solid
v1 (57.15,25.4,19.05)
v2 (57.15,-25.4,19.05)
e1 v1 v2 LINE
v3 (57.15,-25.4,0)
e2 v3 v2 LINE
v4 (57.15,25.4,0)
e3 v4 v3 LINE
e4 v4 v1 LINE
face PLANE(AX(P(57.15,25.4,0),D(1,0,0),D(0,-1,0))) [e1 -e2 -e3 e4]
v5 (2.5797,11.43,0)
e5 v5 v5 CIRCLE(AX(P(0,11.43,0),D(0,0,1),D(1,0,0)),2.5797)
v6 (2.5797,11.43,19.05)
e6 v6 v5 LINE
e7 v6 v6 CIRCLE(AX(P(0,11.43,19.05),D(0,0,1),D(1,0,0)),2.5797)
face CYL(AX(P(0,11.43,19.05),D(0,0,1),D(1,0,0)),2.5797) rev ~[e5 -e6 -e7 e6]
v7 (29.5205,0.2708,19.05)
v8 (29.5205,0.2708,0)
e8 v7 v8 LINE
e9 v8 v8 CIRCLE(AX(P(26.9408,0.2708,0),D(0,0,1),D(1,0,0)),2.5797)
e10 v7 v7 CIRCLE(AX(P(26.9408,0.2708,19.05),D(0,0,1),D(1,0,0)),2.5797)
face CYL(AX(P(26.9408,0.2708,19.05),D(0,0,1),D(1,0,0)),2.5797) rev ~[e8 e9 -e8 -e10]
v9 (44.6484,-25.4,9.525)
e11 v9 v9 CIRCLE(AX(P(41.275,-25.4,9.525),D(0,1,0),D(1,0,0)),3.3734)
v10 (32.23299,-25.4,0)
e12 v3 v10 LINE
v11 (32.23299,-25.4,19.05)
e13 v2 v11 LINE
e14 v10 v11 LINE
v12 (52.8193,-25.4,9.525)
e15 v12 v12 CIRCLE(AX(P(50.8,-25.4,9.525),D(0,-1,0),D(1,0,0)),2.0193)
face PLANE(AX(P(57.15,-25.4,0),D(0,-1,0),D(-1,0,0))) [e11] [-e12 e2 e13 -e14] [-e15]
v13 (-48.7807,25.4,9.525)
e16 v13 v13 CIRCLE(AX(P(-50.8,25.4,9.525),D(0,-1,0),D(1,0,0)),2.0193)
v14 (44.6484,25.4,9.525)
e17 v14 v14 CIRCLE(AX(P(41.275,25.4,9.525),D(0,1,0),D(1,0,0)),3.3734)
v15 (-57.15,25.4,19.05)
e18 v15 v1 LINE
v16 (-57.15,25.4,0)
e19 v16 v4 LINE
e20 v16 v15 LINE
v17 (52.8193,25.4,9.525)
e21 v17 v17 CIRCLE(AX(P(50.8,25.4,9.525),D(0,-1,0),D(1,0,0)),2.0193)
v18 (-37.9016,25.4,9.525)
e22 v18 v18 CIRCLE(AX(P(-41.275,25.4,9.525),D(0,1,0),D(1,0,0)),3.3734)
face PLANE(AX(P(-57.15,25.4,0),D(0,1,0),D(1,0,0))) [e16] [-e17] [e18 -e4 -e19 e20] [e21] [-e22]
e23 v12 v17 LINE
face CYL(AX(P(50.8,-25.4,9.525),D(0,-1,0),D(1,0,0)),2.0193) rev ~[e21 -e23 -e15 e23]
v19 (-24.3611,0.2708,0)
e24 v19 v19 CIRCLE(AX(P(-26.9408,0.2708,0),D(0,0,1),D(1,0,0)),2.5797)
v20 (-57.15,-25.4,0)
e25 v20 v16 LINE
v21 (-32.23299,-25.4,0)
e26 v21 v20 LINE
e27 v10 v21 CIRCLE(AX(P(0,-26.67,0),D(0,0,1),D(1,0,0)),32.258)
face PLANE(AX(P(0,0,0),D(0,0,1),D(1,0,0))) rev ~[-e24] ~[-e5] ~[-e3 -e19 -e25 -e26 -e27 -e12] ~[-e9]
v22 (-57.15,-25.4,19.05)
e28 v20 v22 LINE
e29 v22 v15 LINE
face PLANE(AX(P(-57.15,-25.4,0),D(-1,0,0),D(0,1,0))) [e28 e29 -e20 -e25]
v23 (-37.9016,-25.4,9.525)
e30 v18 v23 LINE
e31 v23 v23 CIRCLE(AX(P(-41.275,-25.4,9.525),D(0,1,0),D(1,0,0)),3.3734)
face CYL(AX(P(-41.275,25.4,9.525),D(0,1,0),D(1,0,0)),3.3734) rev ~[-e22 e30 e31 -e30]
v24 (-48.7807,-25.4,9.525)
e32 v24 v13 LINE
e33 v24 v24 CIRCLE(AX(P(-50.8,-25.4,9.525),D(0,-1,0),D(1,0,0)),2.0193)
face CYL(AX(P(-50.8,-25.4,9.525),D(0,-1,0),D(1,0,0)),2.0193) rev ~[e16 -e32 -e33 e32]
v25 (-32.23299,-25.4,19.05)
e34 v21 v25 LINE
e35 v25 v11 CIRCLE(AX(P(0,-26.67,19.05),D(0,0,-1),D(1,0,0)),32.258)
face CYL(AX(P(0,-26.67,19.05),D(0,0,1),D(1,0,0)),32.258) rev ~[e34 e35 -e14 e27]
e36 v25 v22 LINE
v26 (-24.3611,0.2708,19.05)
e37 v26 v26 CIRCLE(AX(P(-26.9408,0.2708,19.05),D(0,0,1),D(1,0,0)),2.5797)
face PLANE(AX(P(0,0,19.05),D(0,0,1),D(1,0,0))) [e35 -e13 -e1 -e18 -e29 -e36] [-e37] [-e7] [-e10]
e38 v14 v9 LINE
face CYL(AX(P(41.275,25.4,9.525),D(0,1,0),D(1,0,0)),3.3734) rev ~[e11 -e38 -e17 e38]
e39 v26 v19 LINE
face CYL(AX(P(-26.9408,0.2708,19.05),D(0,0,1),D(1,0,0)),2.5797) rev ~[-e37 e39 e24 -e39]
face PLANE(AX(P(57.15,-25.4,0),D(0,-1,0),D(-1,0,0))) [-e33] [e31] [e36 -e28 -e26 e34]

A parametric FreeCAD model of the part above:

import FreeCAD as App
import Part
import Sketcher

V = App.Vector
Q = App.Units.Quantity


def add_polygon(sketch, points):
    """Adds a closed chain of lines whose ends are joined by coincident constraints."""
    first, n = sketch.GeometryCount, len(points)
    for a, b in zip(points, points[1:] + points[:1]):
        sketch.addGeometry(Part.LineSegment(App.Vector(*a, 0), App.Vector(*b, 0)), False)
    for i in range(n):
        sketch.addConstraint(Sketcher.Constraint("Coincident", first + i, 2, first + (i + 1) % n, 1))

doc = App.newDocument("Part")
body = doc.addObject("PartDesign::Body", "Body")

sketch1 = doc.addObject("Sketcher::SketchObject", "Sketch")
body.addObject(sketch1)
sketch1.AttachmentSupport = (doc.XY_Plane, [""])
sketch1.MapMode = "FlatFace"
add_polygon(sketch1, [(-57.15, -25.4), (57.15, -25.4), (57.15, 25.4), (-57.15, 25.4)])
sketch1.addConstraint(Sketcher.Constraint("Horizontal", 0))
sketch1.addConstraint(Sketcher.Constraint("Vertical", 1))
sketch1.addConstraint(Sketcher.Constraint("Horizontal", 2))
sketch1.addConstraint(Sketcher.Constraint("Vertical", 3))
sketch1.addConstraint(Sketcher.Constraint("Symmetric", 0, 2, 2, 2, -1, 1))
sketch1.addConstraint(Sketcher.Constraint("DistanceY", 1, 1, 1, 2, Q("2 in")))
sketch1.addConstraint(Sketcher.Constraint("DistanceX", 0, 1, 0, 2, Q("4.5 in")))
pad1 = doc.addObject("PartDesign::Pad", "Pad")
body.addObject(pad1)
pad1.Profile = sketch1
pad1.Length = Q("0.75 in")

sketch2 = doc.addObject("Sketcher::SketchObject", "Sketch001")
body.addObject(sketch2)
sketch2.AttachmentSupport = (doc.XY_Plane, [""])
sketch2.MapMode = "FlatFace"
sketch2.AttachmentOffset = App.Placement(V(0, 0, 0.75 * 25.4), App.Rotation())
sketch2.addGeometry(Part.Circle(V(0, -26.67, 0), V(0, 0, 1), 32.258), False)
sketch2.addConstraint(Sketcher.Constraint("PointOnObject", 0, 3, -2))
sketch2.addConstraint(Sketcher.Constraint("Diameter", 0, Q("2.54 in")))
sketch2.addConstraint(Sketcher.Constraint("DistanceY", 0, 3, -1, 1, Q("1.05 in")))
pocket1 = doc.addObject("PartDesign::Pocket", "Pocket")
body.addObject(pocket1)
pocket1.Profile = sketch2
pocket1.Type = "ThroughAll"

sketch3 = doc.addObject("Sketcher::SketchObject", "Sketch002")
body.addObject(sketch3)
sketch3.AttachmentSupport = (doc.XZ_Plane, [""])
sketch3.MapMode = "FlatFace"
sketch3.AttachmentOffset = App.Placement(V(0, 0, -1 * 25.4), App.Rotation())
sketch3.addGeometry(Part.Circle(V(-41.275, 9.525, 0), V(0, 0, 1), 3.3734), False)
sketch3.addGeometry(Part.Circle(V(41.275, 9.525, 0), V(0, 0, 1), 3.3734), False)
sketch3.addConstraint(Sketcher.Constraint("Equal", 0, 1))
sketch3.addConstraint(Sketcher.Constraint("Symmetric", 0, 3, 1, 3, -2))
sketch3.addConstraint(Sketcher.Constraint("Diameter", 0, Q("0.265622 in")))
sketch3.addConstraint(Sketcher.Constraint("DistanceX", 0, 3, -1, 1, Q("1.625 in")))
sketch3.addConstraint(Sketcher.Constraint("DistanceY", -1, 1, 0, 3, Q("0.375 in")))
pocket2 = doc.addObject("PartDesign::Pocket", "Pocket001")
body.addObject(pocket2)
pocket2.Profile = sketch3
pocket2.Type = "ThroughAll"
pocket2.Reversed = True

sketch4 = doc.addObject("Sketcher::SketchObject", "Sketch003")
body.addObject(sketch4)
sketch4.AttachmentSupport = (doc.XZ_Plane, [""])
sketch4.MapMode = "FlatFace"
sketch4.AttachmentOffset = App.Placement(V(0, 0, 1 * 25.4), App.Rotation())
sketch4.addGeometry(Part.Circle(V(-50.8, 9.525, 0), V(0, 0, 1), 2.0193), False)
sketch4.addGeometry(Part.Circle(V(50.8, 9.525, 0), V(0, 0, 1), 2.0193), False)
sketch4.addConstraint(Sketcher.Constraint("Equal", 0, 1))
sketch4.addConstraint(Sketcher.Constraint("Symmetric", 0, 3, 1, 3, -2))
sketch4.addConstraint(Sketcher.Constraint("Diameter", 0, Q("0.159 in")))
sketch4.addConstraint(Sketcher.Constraint("DistanceX", 0, 3, -1, 1, Q("2 in")))
sketch4.addConstraint(Sketcher.Constraint("DistanceY", -1, 1, 0, 3, Q("0.375 in")))
pocket3 = doc.addObject("PartDesign::Pocket", "Pocket002")
body.addObject(pocket3)
pocket3.Profile = sketch4
pocket3.Type = "ThroughAll"

sketch5 = doc.addObject("Sketcher::SketchObject", "Sketch004")
body.addObject(sketch5)
sketch5.AttachmentSupport = (doc.XY_Plane, [""])
sketch5.MapMode = "FlatFace"
sketch5.AttachmentOffset = App.Placement(V(0, 0, 0.75 * 25.4), App.Rotation())
sketch5.addGeometry(Part.Circle(V(-26.9408, 0.2708, 0), V(0, 0, 1), 2.5797), False)
sketch5.addGeometry(Part.Circle(V(0, 11.43, 0), V(0, 0, 1), 2.5797), False)
sketch5.addGeometry(Part.Circle(V(26.9408, 0.2708, 0), V(0, 0, 1), 2.5797), False)
sketch5.addConstraint(Sketcher.Constraint("Equal", 0, 1))
sketch5.addConstraint(Sketcher.Constraint("Equal", 1, 2))
sketch5.addConstraint(Sketcher.Constraint("Symmetric", 0, 3, 2, 3, -2))
sketch5.addConstraint(Sketcher.Constraint("PointOnObject", 1, 3, -2))
sketch5.addConstraint(Sketcher.Constraint("Diameter", 0, Q("0.203126 in")))
sketch5.addConstraint(Sketcher.Constraint("DistanceY", -1, 1, 1, 3, Q("0.45 in")))
sketch5.addConstraint(Sketcher.Constraint("DistanceX", 0, 3, -1, 1, 26.9408))
sketch5.addConstraint(Sketcher.Constraint("DistanceY", -1, 1, 0, 3, 0.2708))
pocket4 = doc.addObject("PartDesign::Pocket", "Pocket003")
body.addObject(pocket4)
pocket4.Profile = sketch5
pocket4.Type = "ThroughAll"

doc.recompute()
